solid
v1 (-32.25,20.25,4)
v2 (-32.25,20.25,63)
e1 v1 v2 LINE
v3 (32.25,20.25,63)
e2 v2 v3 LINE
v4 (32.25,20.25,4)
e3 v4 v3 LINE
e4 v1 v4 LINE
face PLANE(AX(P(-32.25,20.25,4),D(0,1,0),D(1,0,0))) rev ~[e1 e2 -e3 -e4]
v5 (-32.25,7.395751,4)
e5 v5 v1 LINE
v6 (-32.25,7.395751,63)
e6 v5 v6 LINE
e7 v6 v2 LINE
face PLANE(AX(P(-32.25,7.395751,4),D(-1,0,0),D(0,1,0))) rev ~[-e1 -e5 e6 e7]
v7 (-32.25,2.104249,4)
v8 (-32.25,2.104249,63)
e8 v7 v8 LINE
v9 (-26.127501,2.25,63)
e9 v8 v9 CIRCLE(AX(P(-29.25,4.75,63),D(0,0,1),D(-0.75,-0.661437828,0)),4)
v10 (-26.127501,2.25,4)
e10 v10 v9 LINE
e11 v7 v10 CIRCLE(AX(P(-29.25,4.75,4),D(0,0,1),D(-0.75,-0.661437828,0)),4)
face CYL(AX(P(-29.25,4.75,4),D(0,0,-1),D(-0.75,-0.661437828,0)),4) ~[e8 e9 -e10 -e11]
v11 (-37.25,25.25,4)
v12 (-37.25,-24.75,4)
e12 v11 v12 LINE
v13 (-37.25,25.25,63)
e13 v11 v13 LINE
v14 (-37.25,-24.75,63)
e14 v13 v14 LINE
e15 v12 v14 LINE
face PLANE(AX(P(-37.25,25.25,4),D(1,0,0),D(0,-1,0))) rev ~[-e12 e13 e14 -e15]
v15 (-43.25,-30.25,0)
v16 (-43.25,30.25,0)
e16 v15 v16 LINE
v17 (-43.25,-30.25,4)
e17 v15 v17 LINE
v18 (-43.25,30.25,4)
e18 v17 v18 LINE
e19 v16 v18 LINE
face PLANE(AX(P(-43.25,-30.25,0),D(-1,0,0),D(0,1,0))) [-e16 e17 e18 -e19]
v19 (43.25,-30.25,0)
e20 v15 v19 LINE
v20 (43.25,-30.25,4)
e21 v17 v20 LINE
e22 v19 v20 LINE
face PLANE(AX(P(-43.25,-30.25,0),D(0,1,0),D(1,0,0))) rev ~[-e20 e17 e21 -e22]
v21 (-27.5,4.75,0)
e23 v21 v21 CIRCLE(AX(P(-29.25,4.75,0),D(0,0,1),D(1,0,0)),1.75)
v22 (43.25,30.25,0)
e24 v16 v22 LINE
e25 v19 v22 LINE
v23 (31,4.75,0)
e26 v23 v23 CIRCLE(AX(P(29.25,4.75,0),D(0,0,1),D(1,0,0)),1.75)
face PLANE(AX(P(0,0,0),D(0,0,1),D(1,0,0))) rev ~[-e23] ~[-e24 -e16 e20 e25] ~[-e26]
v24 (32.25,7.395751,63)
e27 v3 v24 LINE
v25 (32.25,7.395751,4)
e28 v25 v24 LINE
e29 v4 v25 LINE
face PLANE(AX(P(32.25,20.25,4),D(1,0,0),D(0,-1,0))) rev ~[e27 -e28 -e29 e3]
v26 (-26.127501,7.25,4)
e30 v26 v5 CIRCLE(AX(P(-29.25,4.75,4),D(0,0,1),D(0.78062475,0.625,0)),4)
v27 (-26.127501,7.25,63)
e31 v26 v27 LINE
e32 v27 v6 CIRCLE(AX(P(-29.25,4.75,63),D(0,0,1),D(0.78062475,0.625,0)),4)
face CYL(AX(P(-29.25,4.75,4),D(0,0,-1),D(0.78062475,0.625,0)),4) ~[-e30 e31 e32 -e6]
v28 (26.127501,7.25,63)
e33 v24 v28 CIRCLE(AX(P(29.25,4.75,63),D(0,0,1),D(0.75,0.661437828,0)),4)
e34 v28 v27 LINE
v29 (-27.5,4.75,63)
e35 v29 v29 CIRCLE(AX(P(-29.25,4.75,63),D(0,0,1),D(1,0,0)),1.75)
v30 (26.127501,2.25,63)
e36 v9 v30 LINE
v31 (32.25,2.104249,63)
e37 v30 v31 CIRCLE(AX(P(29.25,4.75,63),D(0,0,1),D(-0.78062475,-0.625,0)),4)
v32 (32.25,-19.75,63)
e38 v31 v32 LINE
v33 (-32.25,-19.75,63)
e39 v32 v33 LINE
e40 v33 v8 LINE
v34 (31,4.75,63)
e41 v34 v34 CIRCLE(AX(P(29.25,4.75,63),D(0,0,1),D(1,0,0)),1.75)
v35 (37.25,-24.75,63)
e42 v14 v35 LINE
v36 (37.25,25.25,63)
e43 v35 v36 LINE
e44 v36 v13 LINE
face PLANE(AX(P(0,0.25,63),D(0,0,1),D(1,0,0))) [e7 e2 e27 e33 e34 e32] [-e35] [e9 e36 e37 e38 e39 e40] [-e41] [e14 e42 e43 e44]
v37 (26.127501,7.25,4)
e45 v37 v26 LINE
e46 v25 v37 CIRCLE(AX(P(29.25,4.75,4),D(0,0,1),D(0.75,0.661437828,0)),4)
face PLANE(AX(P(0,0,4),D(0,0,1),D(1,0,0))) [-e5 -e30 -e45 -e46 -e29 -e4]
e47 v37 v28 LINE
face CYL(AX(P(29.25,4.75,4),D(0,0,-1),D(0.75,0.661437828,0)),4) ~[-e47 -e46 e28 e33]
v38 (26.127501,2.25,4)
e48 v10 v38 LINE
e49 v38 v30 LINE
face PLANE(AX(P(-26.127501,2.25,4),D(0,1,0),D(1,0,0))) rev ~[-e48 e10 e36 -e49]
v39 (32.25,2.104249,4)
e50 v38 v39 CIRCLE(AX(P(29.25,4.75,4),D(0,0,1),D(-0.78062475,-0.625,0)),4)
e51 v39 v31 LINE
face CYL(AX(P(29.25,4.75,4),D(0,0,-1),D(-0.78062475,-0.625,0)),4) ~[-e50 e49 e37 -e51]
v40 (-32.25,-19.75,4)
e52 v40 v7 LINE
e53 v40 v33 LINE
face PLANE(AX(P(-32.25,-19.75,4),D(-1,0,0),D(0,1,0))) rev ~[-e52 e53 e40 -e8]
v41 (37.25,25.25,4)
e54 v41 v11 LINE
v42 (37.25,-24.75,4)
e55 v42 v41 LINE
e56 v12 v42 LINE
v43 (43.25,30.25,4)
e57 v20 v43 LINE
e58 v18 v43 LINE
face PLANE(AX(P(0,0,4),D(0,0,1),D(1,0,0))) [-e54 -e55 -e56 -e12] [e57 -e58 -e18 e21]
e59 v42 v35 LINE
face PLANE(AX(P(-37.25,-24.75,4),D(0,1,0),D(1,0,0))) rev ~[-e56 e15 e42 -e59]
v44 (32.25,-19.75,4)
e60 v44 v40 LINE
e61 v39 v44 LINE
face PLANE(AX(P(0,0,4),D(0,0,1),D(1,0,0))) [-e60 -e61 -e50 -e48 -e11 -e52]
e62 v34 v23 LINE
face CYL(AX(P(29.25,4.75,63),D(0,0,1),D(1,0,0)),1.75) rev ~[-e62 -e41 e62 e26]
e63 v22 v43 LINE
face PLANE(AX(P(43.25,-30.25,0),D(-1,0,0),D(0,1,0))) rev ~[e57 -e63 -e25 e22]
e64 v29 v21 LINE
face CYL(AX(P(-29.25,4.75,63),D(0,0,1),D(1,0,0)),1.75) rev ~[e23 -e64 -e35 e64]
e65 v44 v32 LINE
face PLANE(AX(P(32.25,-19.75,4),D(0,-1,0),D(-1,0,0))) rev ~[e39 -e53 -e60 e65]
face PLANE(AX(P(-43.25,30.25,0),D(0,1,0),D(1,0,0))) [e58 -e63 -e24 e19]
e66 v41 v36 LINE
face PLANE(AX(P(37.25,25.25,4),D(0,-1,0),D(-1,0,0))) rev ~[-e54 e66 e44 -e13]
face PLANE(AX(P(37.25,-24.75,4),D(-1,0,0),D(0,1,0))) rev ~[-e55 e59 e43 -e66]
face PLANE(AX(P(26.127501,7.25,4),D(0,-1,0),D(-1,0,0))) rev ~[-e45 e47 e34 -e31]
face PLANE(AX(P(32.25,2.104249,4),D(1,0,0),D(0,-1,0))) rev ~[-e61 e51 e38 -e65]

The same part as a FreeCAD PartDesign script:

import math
import FreeCAD as App
import Part
import Sketcher
from FreeCAD import Vector

doc = App.newDocument("Part")
params = doc.addObject("Spreadsheet::Sheet", "Params")
for row, (alias, value) in enumerate([
    ("sketch1_width", "86.5 mm"),
    ("sketch1_height", "60.5 mm"),
    ("pad1_length", "4 mm"),
    ("sketch2_radius", "4 mm"),
    ("sketch2_height", "50 mm"),
    ("sketch2_width", "74.5 mm"),
    ("sketch2_width2", "64.5 mm"),
    ("pad2_length", "59 mm"),
    ("sketch3_diameter", "3.5 mm"),
], start=1):
    params.set(f"A{row}", alias)
    params.set(f"B{row}", "=" + value)
    params.setAlias(f"B{row}", alias)

body = doc.addObject("PartDesign::Body", "Body")

# Sketch on XY plane
sketch1 = body.newObject("Sketcher::SketchObject", "Sketch")
sketch1.AttachmentSupport = (doc.getObject("XY_Plane"), [""])
sketch1.MapMode = "FlatFace"
sketch1.addGeometry([
    Part.LineSegment(Vector(-43, 30, 0), Vector(-43, -30, 0)),
    Part.LineSegment(Vector(-43, -30, 0), Vector(43, -30, 0)),
    Part.LineSegment(Vector(43, -30, 0), Vector(43, 30, 0)),
    Part.LineSegment(Vector(43, 30, 0), Vector(-43, 30, 0)),
], False)
sketch1.addConstraint([
    Sketcher.Constraint("Coincident", 0, 2, 1, 1),
    Sketcher.Constraint("Coincident", 1, 2, 2, 1),
    Sketcher.Constraint("Coincident", 2, 2, 3, 1),
    Sketcher.Constraint("Coincident", 3, 2, 0, 1),
    Sketcher.Constraint("Vertical", 0),
    Sketcher.Constraint("Horizontal", 1),
    Sketcher.Constraint("Vertical", 2),
    Sketcher.Constraint("Horizontal", 3),
    Sketcher.Constraint("Symmetric", 0, 2, 2, 2, -1, 1),
    Sketcher.Constraint("DistanceX", 1, 1, 1, 2, 86.5),
    Sketcher.Constraint("DistanceY", 0, 2, 0, 1, 60.5),
])
sketch1.setExpression("Constraints[9]", "Params.sketch1_width")
sketch1.setExpression("Constraints[10]", "Params.sketch1_height")
pad1 = body.newObject("PartDesign::Pad", "Pad")
pad1.Profile = sketch1
pad1.setExpression("Length", "Params.pad1_length")

# Sketch on XY plane
sketch2 = body.newObject("Sketcher::SketchObject", "Sketch001")
sketch2.AttachmentSupport = (doc.getObject("XY_Plane"), [""])
sketch2.MapMode = "FlatFace"
sketch2.AttachmentOffset = App.Placement(Vector(0, 0, 4), App.Rotation())
sketch2.addGeometry([
    Part.LineSegment(Vector(37.2, -24.8, 0), Vector(37.2, 25.2, 0)),  # 0
    Part.LineSegment(Vector(37.2, 25.2, 0), Vector(-37.2, 25.2, 0)),  # 1
    Part.LineSegment(Vector(-37.2, 25.2, 0), Vector(-37.2, -24.8, 0)),  # 2
    Part.LineSegment(Vector(-37.2, -24.8, 0), Vector(37.2, -24.8, 0)),  # 3
    Part.LineSegment(Vector(-32.2, -19.8, 0), Vector(-32.2, 2.1, 0)),  # 4
    Part.ArcOfCircle(Part.Circle(Vector(-29.2, 4.8, 0), Vector(0, 0, 1), 4), math.radians(-139), math.radians(-39)),  # 5
    Part.LineSegment(Vector(-26.1, 2.2, 0), Vector(26.1, 2.2, 0)),  # 6
    Part.ArcOfCircle(Part.Circle(Vector(29.2, 4.8, 0), Vector(0, 0, 1), 4), math.radians(-141), math.radians(-41)),  # 7
    Part.LineSegment(Vector(32.2, 2.1, 0), Vector(32.2, -19.8, 0)),  # 8
    Part.LineSegment(Vector(32.2, -19.8, 0), Vector(-32.2, -19.8, 0)),  # 9
    Part.LineSegment(Vector(-32.2, 7.4, 0), Vector(-32.2, 20.2, 0)),  # 10
    Part.LineSegment(Vector(-32.2, 20.2, 0), Vector(32.2, 20.2, 0)),  # 11
    Part.LineSegment(Vector(32.2, 20.2, 0), Vector(32.2, 7.4, 0)),  # 12
    Part.ArcOfCircle(Part.Circle(Vector(29.2, 4.8, 0), Vector(0, 0, 1), 4), math.radians(41), math.radians(141)),  # 13
    Part.LineSegment(Vector(26.1, 7.2, 0), Vector(-26.1, 7.2, 0)),  # 14
    Part.ArcOfCircle(Part.Circle(Vector(-29.2, 4.8, 0), Vector(0, 0, 1), 4), math.radians(39), math.radians(139)),  # 15
], False)
sketch2.addConstraint([
    Sketcher.Constraint("Coincident", 0, 2, 1, 1),
    Sketcher.Constraint("Coincident", 1, 2, 2, 1),
    Sketcher.Constraint("Coincident", 2, 2, 3, 1),
    Sketcher.Constraint("Coincident", 3, 2, 0, 1),
    Sketcher.Constraint("Coincident", 4, 2, 5, 1),
    Sketcher.Constraint("Coincident", 5, 2, 6, 1),
    Sketcher.Constraint("Coincident", 6, 2, 7, 1),
    Sketcher.Constraint("Coincident", 7, 2, 8, 1),
    Sketcher.Constraint("Coincident", 8, 2, 9, 1),
    Sketcher.Constraint("Coincident", 9, 2, 4, 1),
    Sketcher.Constraint("Coincident", 10, 2, 11, 1),
    Sketcher.Constraint("Coincident", 11, 2, 12, 1),
    Sketcher.Constraint("Coincident", 12, 2, 13, 1),
    Sketcher.Constraint("Coincident", 13, 2, 14, 1),
    Sketcher.Constraint("Coincident", 14, 2, 15, 1),
    Sketcher.Constraint("Coincident", 15, 2, 10, 1),
    Sketcher.Constraint("Vertical", 0),
    Sketcher.Constraint("Horizontal", 1),
    Sketcher.Constraint("Vertical", 2),
    Sketcher.Constraint("Horizontal", 3),
    Sketcher.Constraint("Vertical", 4),
    Sketcher.Constraint("Horizontal", 6),
    Sketcher.Constraint("Vertical", 8),
    Sketcher.Constraint("Horizontal", 9),
    Sketcher.Constraint("Vertical", 10),
    Sketcher.Constraint("Horizontal", 11),
    Sketcher.Constraint("Vertical", 12),
    Sketcher.Constraint("Horizontal", 14),
    Sketcher.Constraint("Coincident", 13, 3, 7, 3),
    Sketcher.Constraint("Coincident", 15, 3, 5, 3),
    Sketcher.Constraint("Equal", 5, 7),
    Sketcher.Constraint("Equal", 7, 13),
    Sketcher.Constraint("Equal", 13, 15),
    Sketcher.Constraint("Symmetric", 5, 3, 7, 3, -2),
    Sketcher.Constraint("Horizontal", 4, 2, 7, 2),
    Sketcher.Constraint("Horizontal", 12, 2, 15, 2),
    Sketcher.Constraint("Vertical", 9, 2, 10, 2),
    Sketcher.Constraint("Vertical", 6, 2, 13, 2),
    Sketcher.Constraint("Radius", 5, 4.0),
    Sketcher.Constraint("DistanceY", 0, 1, 0, 2, 50.0),
    Sketcher.Constraint("DistanceX", 1, 2, 1, 1, 74.5),
    Sketcher.Constraint("DistanceX", 9, 2, 9, 1, 64.5),
    Sketcher.Constraint("DistanceX", 7, 3, 0, 2, 8.0),
    Sketcher.Constraint("DistanceX", 1, 2, 5, 3, 8.0),
    Sketcher.Constraint("DistanceY", 5, 2, 1, 2, 23.0),
    Sketcher.Constraint("DistanceY", 3, 2, 8, 2, 5.0),
    Sketcher.Constraint("DistanceY", 10, 2, 1, 2, 5.0),
    Sketcher.Constraint("DistanceY", 6, 2, 13, 2, 5.0),
    Sketcher.Constraint("DistanceY", -1, 1, 5, 3, 4.75),
])
sketch2.setExpression("Constraints[38]", "Params.sketch2_radius")
sketch2.setExpression("Constraints[39]", "Params.sketch2_height")
sketch2.setExpression("Constraints[40]", "Params.sketch2_width")
sketch2.setExpression("Constraints[41]", "Params.sketch2_width2")
pad2 = body.newObject("PartDesign::Pad", "Pad001")
pad2.Profile = sketch2
pad2.setExpression("Length", "Params.pad2_length")

# Sketch on XY plane
sketch3 = body.newObject("Sketcher::SketchObject", "Sketch002")
sketch3.AttachmentSupport = (doc.getObject("XY_Plane"), [""])
sketch3.MapMode = "FlatFace"
sketch3.AttachmentOffset = App.Placement(Vector(0, 0, 63), App.Rotation())
sketch3.addGeometry([
    Part.Circle(Vector(-29.2, 4.8, 0), Vector(0, 0, 1), 1.8),
    Part.Circle(Vector(29.2, 4.8, 0), Vector(0, 0, 1), 1.8),
], False)
sketch3.addConstraint([
    Sketcher.Constraint("Equal", 0, 1),
    Sketcher.Constraint("Symmetric", 0, 3, 1, 3, -2),
    Sketcher.Constraint("Diameter", 0, 3.5),
    Sketcher.Constraint("DistanceX", 0, 3, 1, 3, 58.5),
    Sketcher.Constraint("DistanceY", -1, 1, 0, 3, 4.75),
])
sketch3.setExpression("Constraints[2]", "Params.sketch3_diameter")
pocket1 = body.newObject("PartDesign::Pocket", "Pocket")
pocket1.Profile = sketch3
pocket1.Type = "ThroughAll"

doc.recompute()
